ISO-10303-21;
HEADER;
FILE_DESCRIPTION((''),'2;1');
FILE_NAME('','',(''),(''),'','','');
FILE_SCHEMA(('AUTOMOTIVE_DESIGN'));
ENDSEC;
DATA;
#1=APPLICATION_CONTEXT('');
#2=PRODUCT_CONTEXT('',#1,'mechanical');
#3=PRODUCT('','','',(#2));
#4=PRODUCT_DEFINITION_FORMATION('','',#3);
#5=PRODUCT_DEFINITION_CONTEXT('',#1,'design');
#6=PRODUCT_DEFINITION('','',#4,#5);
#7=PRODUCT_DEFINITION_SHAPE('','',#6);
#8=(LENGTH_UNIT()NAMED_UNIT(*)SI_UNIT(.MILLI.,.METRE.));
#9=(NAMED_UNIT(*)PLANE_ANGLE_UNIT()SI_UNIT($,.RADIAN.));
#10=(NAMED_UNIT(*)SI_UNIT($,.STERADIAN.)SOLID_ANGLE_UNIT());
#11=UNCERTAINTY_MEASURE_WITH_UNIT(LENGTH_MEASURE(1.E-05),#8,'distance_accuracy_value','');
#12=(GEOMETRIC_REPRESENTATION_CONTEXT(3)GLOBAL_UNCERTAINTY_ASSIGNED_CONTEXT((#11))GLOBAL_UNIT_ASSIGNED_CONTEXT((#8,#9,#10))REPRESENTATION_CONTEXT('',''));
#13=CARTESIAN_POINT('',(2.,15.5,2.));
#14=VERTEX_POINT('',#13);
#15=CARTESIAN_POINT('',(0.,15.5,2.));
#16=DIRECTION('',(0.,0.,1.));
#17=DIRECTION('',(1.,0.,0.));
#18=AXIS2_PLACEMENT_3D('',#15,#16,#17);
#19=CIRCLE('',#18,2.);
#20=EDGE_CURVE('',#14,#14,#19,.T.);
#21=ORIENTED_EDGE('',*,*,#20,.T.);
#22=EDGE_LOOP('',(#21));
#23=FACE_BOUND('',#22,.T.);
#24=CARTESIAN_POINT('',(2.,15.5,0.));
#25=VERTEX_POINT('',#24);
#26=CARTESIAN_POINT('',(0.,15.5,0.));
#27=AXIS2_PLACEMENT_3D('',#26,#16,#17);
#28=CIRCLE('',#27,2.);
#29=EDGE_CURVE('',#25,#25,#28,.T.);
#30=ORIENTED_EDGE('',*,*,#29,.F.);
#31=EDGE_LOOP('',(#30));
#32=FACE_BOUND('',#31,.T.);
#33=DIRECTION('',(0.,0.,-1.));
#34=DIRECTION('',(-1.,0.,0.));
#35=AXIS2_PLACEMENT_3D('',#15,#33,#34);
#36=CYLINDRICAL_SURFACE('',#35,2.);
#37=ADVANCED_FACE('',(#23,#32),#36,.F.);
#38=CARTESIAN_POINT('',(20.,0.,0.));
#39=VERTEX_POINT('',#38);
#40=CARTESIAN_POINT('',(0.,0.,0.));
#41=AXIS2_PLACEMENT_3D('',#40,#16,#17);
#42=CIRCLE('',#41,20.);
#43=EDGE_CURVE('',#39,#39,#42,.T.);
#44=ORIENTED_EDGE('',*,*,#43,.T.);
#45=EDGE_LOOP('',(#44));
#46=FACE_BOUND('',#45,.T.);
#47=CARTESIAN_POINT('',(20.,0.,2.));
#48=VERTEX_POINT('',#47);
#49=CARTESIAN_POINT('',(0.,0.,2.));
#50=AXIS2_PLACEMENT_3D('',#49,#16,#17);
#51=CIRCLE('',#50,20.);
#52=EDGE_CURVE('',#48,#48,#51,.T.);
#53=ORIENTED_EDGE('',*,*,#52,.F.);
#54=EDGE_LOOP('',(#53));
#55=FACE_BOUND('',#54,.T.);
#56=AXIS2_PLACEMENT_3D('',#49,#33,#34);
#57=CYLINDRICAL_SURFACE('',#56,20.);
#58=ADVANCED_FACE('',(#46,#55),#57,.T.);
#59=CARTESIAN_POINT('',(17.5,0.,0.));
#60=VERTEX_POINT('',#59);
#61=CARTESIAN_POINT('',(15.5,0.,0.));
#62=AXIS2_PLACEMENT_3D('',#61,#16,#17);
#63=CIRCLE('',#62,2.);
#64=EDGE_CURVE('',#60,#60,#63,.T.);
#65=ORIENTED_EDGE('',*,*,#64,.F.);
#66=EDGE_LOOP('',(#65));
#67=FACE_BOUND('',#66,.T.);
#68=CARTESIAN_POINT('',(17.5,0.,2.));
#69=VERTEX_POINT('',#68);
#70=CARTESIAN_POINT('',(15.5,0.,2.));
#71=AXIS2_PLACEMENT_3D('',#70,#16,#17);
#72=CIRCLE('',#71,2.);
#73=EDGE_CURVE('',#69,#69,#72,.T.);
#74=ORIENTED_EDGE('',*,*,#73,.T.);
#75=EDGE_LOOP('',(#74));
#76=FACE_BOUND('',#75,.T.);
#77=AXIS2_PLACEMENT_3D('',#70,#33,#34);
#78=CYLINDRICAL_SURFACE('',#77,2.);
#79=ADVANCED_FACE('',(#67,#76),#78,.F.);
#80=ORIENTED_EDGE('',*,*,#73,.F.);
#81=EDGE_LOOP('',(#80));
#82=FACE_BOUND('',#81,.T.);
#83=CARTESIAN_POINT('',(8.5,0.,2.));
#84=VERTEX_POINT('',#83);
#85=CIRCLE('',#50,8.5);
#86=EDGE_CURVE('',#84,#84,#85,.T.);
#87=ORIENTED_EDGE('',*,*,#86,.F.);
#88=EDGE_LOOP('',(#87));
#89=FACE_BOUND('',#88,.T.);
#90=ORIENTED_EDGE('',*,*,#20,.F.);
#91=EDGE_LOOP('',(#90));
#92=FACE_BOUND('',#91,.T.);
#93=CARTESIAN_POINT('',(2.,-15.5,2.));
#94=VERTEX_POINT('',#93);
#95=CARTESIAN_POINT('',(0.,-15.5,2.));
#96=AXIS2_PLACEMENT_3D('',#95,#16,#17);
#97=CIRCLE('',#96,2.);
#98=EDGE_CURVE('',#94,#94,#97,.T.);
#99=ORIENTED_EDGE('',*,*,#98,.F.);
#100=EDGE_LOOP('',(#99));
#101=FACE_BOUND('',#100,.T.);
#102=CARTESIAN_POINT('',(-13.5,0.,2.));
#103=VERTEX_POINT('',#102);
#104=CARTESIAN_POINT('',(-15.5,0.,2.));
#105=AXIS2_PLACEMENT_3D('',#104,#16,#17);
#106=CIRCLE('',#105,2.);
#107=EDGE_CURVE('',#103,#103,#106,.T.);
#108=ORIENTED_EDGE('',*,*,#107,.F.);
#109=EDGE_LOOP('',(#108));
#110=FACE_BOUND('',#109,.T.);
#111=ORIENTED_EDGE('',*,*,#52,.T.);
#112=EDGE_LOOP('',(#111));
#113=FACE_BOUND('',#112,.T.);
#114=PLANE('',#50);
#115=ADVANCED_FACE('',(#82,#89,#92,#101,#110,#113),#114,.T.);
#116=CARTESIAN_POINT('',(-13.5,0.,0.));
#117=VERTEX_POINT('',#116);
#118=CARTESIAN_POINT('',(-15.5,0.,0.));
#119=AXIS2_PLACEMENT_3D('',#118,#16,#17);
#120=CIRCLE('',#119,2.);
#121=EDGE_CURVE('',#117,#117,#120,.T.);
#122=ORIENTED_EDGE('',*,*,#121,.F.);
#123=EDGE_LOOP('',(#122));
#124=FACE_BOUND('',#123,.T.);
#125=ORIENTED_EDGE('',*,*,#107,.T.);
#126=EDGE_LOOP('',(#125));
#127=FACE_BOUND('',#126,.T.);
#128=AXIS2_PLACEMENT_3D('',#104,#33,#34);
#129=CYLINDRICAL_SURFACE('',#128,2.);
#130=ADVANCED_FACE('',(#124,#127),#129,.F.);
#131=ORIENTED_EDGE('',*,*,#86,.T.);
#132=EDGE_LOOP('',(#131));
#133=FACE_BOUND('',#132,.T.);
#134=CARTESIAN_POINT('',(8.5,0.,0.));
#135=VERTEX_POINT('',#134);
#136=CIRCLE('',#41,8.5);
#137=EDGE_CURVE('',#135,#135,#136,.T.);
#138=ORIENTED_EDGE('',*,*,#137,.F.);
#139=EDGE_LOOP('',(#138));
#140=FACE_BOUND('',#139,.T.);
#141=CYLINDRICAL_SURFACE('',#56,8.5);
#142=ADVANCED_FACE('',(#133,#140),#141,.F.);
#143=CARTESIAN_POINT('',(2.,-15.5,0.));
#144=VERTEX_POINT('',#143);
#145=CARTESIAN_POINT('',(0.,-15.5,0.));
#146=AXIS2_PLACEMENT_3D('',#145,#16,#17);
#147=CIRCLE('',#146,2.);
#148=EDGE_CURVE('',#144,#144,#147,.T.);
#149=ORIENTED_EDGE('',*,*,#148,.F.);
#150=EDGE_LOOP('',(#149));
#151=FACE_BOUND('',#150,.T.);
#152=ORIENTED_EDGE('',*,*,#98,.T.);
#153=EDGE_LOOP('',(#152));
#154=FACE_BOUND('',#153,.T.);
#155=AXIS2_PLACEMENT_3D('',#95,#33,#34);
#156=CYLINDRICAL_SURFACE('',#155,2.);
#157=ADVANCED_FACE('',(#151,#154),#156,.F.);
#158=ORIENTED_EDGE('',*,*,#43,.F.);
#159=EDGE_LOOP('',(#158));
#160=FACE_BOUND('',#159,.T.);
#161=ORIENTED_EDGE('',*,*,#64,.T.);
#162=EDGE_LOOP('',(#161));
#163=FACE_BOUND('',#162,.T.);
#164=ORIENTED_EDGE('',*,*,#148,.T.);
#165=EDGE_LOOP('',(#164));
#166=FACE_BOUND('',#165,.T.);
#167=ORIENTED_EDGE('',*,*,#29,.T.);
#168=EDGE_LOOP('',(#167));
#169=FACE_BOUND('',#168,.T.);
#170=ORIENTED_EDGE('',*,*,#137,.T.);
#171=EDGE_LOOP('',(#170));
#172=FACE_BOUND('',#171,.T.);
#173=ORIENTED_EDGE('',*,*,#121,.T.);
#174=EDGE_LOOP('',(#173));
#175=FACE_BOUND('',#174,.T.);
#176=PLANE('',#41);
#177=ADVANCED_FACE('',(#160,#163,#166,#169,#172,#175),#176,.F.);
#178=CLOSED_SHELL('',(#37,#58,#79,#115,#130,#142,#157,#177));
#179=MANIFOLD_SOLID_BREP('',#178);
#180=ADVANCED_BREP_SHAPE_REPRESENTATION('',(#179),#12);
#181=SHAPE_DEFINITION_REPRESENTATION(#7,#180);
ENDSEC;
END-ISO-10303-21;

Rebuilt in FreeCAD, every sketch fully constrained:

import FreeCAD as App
import Part
import Sketcher
from FreeCAD import Vector
Q = App.Units.Quantity

doc = App.newDocument("Part")
body = doc.addObject("PartDesign::Body", "Body")

sketch1 = doc.addObject("Sketcher::SketchObject", "Sketch")
body.addObject(sketch1)
sketch1.AttachmentSupport = (doc.XY_Plane, [""])
sketch1.MapMode = "FlatFace"
sketch1.addGeometry(Part.Circle(Vector(0, 0, 0), Vector(0, 0, 1), 20), False)
sketch1.addGeometry(Part.Circle(Vector(0, -15.5, 0), Vector(0, 0, 1), 2), False)
sketch1.addGeometry(Part.Circle(Vector(-15.5, 0, 0), Vector(0, 0, 1), 2), False)
sketch1.addGeometry(Part.Circle(Vector(0, 0, 0), Vector(0, 0, 1), 8.5), False)
sketch1.addGeometry(Part.Circle(Vector(15.5, 0, 0), Vector(0, 0, 1), 2), False)
sketch1.addGeometry(Part.Circle(Vector(0, 15.5, 0), Vector(0, 0, 1), 2), False)
sketch1.addConstraint(Sketcher.Constraint("Coincident", 0, 3, -1, 1))
sketch1.addConstraint(Sketcher.Constraint("Coincident", 3, 3, -1, 1))
sketch1.addConstraint(Sketcher.Constraint("Equal", 1, 2))
sketch1.addConstraint(Sketcher.Constraint("Equal", 2, 4))
sketch1.addConstraint(Sketcher.Constraint("Equal", 4, 5))
sketch1.addConstraint(Sketcher.Constraint("Symmetric", 2, 3, 4, 3, -1, 1))
sketch1.addConstraint(Sketcher.Constraint("Symmetric", 1, 3, 5, 3, -1, 1))
sketch1.addConstraint(Sketcher.Constraint("PointOnObject", 1, 3, -2))
sketch1.addConstraint(Sketcher.Constraint("PointOnObject", 2, 3, -1))
sketch1.addConstraint(Sketcher.Constraint("Diameter", 0, Q("40 mm")))
sketch1.addConstraint(Sketcher.Constraint("Diameter", 1, Q("4 mm")))
sketch1.addConstraint(Sketcher.Constraint("Diameter", 3, Q("17 mm")))
sketch1.addConstraint(Sketcher.Constraint("DistanceX", 2, 3, 4, 3, Q("31 mm")))
sketch1.addConstraint(Sketcher.Constraint("DistanceY", 1, 3, 5, 3, Q("31 mm")))
pad1 = doc.addObject("PartDesign::Pad", "Pad")
body.addObject(pad1)
pad1.Profile = sketch1
pad1.Length = 2

doc.recompute()
